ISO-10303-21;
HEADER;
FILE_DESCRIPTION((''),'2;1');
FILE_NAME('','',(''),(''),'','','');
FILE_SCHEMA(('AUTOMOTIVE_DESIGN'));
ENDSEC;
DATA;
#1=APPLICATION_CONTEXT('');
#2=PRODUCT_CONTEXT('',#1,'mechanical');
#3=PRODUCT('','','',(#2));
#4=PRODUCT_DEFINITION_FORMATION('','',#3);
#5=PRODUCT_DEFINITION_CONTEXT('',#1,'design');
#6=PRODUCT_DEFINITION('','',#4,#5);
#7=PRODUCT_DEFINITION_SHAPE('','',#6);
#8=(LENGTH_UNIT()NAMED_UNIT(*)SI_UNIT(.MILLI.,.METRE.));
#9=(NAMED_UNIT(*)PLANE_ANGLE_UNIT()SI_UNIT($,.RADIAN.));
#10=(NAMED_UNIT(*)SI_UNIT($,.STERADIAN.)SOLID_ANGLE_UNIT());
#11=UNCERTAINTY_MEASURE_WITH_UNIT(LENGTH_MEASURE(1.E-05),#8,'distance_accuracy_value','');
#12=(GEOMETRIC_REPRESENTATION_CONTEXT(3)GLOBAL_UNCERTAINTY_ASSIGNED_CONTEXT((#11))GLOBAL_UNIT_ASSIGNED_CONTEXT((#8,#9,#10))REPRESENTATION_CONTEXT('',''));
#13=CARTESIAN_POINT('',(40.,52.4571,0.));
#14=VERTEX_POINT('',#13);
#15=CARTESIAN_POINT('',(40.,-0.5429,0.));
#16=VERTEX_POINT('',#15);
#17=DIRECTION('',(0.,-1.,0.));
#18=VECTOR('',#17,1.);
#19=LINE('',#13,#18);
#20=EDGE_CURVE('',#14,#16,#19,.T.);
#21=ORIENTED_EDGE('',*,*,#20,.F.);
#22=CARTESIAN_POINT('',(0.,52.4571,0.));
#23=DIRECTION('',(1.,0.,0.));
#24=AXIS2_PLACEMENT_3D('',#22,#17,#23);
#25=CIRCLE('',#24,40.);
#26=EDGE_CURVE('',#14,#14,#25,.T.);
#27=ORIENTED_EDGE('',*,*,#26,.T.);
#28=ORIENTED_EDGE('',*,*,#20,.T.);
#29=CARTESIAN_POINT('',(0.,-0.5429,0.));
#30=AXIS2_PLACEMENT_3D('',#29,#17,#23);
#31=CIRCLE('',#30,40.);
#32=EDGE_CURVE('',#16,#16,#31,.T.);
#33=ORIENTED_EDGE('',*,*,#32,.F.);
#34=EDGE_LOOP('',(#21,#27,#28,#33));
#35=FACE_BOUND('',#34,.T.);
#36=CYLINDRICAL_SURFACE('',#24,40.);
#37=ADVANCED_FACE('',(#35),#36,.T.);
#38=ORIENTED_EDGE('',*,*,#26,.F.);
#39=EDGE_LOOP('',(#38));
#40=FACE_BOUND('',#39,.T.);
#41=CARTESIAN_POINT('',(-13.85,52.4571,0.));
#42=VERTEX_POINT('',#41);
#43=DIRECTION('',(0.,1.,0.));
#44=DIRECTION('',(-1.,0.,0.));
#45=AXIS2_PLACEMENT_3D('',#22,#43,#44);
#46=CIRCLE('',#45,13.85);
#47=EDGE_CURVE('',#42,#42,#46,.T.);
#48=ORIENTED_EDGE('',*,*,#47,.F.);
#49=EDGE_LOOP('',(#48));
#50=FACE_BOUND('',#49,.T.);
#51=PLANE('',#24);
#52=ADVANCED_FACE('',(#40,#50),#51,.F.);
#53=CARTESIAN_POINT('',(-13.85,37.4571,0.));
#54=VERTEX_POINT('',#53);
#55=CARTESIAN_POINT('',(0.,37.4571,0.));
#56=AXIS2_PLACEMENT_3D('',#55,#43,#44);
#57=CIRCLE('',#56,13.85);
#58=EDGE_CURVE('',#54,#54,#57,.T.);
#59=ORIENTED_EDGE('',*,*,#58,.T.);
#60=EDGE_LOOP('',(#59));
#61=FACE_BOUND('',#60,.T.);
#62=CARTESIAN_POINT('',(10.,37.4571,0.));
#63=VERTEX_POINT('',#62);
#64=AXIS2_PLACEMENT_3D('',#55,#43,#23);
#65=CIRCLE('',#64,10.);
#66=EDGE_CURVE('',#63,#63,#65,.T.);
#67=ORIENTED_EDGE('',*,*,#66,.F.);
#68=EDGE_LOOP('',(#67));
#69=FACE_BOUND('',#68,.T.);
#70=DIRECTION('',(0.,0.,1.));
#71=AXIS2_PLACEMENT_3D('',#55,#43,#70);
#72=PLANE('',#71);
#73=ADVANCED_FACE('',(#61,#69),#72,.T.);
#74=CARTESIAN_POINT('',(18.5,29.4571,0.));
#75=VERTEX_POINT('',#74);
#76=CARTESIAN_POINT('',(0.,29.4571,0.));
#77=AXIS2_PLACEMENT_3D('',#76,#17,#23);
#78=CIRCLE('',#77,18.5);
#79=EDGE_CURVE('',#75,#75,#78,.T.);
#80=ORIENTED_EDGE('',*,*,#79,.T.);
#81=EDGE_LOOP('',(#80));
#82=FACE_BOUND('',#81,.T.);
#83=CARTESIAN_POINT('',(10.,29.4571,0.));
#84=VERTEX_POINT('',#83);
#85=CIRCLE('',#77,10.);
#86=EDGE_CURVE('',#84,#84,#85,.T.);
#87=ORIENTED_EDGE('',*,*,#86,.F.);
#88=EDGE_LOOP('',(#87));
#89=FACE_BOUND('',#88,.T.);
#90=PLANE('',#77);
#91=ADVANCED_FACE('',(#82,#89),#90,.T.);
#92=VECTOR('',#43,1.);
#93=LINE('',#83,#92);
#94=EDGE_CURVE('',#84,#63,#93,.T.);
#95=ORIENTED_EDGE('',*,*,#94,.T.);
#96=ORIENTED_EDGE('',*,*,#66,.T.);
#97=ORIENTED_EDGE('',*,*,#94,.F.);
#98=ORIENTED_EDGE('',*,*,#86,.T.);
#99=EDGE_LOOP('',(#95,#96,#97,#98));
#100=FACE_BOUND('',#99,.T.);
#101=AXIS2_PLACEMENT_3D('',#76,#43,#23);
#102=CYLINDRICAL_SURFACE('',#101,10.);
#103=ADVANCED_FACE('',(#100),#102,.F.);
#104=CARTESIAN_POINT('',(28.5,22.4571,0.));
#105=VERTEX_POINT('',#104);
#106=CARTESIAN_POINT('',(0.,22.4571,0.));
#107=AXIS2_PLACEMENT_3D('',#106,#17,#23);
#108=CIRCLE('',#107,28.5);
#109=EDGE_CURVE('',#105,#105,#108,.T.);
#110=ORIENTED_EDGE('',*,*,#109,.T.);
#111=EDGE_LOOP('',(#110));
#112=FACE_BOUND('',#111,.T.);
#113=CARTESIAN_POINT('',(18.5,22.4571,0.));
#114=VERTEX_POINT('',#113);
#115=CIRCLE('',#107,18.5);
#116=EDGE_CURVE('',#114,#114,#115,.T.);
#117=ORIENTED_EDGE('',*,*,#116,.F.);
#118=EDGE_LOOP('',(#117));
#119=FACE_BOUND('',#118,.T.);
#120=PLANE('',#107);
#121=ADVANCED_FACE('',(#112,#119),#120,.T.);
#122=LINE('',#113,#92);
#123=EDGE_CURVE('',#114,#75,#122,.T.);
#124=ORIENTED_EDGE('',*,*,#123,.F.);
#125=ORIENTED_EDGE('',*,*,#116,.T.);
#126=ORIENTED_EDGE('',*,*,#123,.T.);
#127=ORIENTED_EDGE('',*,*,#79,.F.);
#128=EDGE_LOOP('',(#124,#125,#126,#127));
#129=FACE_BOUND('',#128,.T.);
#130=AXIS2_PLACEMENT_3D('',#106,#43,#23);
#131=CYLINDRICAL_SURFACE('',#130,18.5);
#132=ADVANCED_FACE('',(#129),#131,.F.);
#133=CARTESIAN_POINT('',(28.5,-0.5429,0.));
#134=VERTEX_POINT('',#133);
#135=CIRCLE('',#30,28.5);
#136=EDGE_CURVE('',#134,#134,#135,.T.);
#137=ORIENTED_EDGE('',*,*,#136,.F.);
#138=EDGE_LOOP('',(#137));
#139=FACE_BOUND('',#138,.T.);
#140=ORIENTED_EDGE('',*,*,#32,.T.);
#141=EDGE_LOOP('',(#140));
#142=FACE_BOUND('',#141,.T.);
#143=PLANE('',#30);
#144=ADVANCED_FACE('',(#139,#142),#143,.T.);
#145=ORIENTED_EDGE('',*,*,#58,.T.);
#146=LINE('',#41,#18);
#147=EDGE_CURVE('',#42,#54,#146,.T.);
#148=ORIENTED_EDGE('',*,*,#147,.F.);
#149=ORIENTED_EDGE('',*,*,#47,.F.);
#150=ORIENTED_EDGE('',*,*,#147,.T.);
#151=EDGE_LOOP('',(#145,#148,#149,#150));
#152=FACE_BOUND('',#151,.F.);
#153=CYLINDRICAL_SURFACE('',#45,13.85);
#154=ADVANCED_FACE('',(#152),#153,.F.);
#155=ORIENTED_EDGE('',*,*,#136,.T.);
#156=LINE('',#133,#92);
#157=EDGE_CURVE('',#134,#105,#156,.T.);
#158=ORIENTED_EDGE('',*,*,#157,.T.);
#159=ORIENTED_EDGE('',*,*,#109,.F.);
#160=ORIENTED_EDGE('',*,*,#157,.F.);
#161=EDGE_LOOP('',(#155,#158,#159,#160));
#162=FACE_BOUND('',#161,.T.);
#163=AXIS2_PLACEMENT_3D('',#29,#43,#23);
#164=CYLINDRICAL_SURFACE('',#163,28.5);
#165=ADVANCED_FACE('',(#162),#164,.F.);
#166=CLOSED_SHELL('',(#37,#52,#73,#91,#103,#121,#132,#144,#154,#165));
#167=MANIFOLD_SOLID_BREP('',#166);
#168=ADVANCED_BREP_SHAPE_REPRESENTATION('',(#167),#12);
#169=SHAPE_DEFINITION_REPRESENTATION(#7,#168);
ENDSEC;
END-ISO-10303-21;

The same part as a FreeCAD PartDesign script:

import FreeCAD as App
import Part
import Sketcher

V = App.Vector
Q = App.Units.Quantity

doc = App.newDocument("Part")
body = doc.addObject("PartDesign::Body", "Body")

sketch1 = body.newObject("Sketcher::SketchObject", "Sketch")
sketch1.AttachmentSupport = (doc.getObject("XY_Plane"), [""])
sketch1.MapMode = "FlatFace"
sketch1.addGeometry([
    Part.LineSegment(V(40, 52.4571, 0), V(10, 52.4571, 0)),
    Part.LineSegment(V(10, 52.4571, 0), V(10, 29.4571, 0)),
    Part.LineSegment(V(10, 29.4571, 0), V(18.5, 29.4571, 0)),
    Part.LineSegment(V(18.5, 29.4571, 0), V(18.5, 22.4571, 0)),
    Part.LineSegment(V(18.5, 22.4571, 0), V(28.5, 22.4571, 0)),
    Part.LineSegment(V(28.5, 22.4571, 0), V(28.5, -0.5429, 0)),
    Part.LineSegment(V(28.5, -0.5429, 0), V(40, -0.5429, 0)),
    Part.LineSegment(V(40, -0.5429, 0), V(40, 52.4571, 0)),
], False)
sketch1.addConstraint([
    Sketcher.Constraint("Coincident", 0, 2, 1, 1),
    Sketcher.Constraint("Coincident", 1, 2, 2, 1),
    Sketcher.Constraint("Coincident", 2, 2, 3, 1),
    Sketcher.Constraint("Coincident", 3, 2, 4, 1),
    Sketcher.Constraint("Coincident", 4, 2, 5, 1),
    Sketcher.Constraint("Coincident", 5, 2, 6, 1),
    Sketcher.Constraint("Coincident", 6, 2, 7, 1),
    Sketcher.Constraint("Coincident", 7, 2, 0, 1),
    Sketcher.Constraint("Horizontal", 0),
    Sketcher.Constraint("Vertical", 1),
    Sketcher.Constraint("Horizontal", 2),
    Sketcher.Constraint("Vertical", 3),
    Sketcher.Constraint("Horizontal", 4),
    Sketcher.Constraint("Vertical", 5),
    Sketcher.Constraint("Horizontal", 6),
    Sketcher.Constraint("Vertical", 7),
    Sketcher.Constraint("Equal", 1, 5),
    Sketcher.Constraint("DistanceX", 0, 2, 0, 1, Q("30 mm")),
    Sketcher.Constraint("DistanceX", 4, 1, 4, 2, Q("10 mm")),
    Sketcher.Constraint("DistanceY", 1, 2, 1, 1, Q("23 mm")),
    Sketcher.Constraint("DistanceY", 3, 2, 3, 1, Q("7 mm")),
    Sketcher.Constraint("DistanceX", 2, 1, 2, 2, Q("8.5 mm")),
    Sketcher.Constraint("DistanceX", -1, 1, 0, 2, Q("10 mm")),
    Sketcher.Constraint("DistanceY", -1, 1, 0, 2, Q("52.457 mm")),
])
revolution = body.newObject("PartDesign::Revolution", "Revolution")
revolution.Profile = sketch1
revolution.ReferenceAxis = (sketch1, ["V_Axis"])
revolution.Angle = 360

sketch2 = body.newObject("Sketcher::SketchObject", "Sketch001")
sketch2.AttachmentSupport = (doc.getObject("XZ_Plane"), [""])
sketch2.MapMode = "FlatFace"
sketch2.AttachmentOffset = App.Placement(V(0, 0, -52.4571), App.Rotation())
sketch2.addGeometry(Part.Circle(V(0, 0, 0), V(0, 0, 1), 13.85), False)
sketch2.addConstraint([
    Sketcher.Constraint("Coincident", 0, 3, -1, 1),
    Sketcher.Constraint("Diameter", 0, Q("27.7 mm")),
])
pocket1 = body.newObject("PartDesign::Pocket", "Pocket")
pocket1.Profile = sketch2
pocket1.Length = 15
pocket1.Reversed = True

doc.recompute()
